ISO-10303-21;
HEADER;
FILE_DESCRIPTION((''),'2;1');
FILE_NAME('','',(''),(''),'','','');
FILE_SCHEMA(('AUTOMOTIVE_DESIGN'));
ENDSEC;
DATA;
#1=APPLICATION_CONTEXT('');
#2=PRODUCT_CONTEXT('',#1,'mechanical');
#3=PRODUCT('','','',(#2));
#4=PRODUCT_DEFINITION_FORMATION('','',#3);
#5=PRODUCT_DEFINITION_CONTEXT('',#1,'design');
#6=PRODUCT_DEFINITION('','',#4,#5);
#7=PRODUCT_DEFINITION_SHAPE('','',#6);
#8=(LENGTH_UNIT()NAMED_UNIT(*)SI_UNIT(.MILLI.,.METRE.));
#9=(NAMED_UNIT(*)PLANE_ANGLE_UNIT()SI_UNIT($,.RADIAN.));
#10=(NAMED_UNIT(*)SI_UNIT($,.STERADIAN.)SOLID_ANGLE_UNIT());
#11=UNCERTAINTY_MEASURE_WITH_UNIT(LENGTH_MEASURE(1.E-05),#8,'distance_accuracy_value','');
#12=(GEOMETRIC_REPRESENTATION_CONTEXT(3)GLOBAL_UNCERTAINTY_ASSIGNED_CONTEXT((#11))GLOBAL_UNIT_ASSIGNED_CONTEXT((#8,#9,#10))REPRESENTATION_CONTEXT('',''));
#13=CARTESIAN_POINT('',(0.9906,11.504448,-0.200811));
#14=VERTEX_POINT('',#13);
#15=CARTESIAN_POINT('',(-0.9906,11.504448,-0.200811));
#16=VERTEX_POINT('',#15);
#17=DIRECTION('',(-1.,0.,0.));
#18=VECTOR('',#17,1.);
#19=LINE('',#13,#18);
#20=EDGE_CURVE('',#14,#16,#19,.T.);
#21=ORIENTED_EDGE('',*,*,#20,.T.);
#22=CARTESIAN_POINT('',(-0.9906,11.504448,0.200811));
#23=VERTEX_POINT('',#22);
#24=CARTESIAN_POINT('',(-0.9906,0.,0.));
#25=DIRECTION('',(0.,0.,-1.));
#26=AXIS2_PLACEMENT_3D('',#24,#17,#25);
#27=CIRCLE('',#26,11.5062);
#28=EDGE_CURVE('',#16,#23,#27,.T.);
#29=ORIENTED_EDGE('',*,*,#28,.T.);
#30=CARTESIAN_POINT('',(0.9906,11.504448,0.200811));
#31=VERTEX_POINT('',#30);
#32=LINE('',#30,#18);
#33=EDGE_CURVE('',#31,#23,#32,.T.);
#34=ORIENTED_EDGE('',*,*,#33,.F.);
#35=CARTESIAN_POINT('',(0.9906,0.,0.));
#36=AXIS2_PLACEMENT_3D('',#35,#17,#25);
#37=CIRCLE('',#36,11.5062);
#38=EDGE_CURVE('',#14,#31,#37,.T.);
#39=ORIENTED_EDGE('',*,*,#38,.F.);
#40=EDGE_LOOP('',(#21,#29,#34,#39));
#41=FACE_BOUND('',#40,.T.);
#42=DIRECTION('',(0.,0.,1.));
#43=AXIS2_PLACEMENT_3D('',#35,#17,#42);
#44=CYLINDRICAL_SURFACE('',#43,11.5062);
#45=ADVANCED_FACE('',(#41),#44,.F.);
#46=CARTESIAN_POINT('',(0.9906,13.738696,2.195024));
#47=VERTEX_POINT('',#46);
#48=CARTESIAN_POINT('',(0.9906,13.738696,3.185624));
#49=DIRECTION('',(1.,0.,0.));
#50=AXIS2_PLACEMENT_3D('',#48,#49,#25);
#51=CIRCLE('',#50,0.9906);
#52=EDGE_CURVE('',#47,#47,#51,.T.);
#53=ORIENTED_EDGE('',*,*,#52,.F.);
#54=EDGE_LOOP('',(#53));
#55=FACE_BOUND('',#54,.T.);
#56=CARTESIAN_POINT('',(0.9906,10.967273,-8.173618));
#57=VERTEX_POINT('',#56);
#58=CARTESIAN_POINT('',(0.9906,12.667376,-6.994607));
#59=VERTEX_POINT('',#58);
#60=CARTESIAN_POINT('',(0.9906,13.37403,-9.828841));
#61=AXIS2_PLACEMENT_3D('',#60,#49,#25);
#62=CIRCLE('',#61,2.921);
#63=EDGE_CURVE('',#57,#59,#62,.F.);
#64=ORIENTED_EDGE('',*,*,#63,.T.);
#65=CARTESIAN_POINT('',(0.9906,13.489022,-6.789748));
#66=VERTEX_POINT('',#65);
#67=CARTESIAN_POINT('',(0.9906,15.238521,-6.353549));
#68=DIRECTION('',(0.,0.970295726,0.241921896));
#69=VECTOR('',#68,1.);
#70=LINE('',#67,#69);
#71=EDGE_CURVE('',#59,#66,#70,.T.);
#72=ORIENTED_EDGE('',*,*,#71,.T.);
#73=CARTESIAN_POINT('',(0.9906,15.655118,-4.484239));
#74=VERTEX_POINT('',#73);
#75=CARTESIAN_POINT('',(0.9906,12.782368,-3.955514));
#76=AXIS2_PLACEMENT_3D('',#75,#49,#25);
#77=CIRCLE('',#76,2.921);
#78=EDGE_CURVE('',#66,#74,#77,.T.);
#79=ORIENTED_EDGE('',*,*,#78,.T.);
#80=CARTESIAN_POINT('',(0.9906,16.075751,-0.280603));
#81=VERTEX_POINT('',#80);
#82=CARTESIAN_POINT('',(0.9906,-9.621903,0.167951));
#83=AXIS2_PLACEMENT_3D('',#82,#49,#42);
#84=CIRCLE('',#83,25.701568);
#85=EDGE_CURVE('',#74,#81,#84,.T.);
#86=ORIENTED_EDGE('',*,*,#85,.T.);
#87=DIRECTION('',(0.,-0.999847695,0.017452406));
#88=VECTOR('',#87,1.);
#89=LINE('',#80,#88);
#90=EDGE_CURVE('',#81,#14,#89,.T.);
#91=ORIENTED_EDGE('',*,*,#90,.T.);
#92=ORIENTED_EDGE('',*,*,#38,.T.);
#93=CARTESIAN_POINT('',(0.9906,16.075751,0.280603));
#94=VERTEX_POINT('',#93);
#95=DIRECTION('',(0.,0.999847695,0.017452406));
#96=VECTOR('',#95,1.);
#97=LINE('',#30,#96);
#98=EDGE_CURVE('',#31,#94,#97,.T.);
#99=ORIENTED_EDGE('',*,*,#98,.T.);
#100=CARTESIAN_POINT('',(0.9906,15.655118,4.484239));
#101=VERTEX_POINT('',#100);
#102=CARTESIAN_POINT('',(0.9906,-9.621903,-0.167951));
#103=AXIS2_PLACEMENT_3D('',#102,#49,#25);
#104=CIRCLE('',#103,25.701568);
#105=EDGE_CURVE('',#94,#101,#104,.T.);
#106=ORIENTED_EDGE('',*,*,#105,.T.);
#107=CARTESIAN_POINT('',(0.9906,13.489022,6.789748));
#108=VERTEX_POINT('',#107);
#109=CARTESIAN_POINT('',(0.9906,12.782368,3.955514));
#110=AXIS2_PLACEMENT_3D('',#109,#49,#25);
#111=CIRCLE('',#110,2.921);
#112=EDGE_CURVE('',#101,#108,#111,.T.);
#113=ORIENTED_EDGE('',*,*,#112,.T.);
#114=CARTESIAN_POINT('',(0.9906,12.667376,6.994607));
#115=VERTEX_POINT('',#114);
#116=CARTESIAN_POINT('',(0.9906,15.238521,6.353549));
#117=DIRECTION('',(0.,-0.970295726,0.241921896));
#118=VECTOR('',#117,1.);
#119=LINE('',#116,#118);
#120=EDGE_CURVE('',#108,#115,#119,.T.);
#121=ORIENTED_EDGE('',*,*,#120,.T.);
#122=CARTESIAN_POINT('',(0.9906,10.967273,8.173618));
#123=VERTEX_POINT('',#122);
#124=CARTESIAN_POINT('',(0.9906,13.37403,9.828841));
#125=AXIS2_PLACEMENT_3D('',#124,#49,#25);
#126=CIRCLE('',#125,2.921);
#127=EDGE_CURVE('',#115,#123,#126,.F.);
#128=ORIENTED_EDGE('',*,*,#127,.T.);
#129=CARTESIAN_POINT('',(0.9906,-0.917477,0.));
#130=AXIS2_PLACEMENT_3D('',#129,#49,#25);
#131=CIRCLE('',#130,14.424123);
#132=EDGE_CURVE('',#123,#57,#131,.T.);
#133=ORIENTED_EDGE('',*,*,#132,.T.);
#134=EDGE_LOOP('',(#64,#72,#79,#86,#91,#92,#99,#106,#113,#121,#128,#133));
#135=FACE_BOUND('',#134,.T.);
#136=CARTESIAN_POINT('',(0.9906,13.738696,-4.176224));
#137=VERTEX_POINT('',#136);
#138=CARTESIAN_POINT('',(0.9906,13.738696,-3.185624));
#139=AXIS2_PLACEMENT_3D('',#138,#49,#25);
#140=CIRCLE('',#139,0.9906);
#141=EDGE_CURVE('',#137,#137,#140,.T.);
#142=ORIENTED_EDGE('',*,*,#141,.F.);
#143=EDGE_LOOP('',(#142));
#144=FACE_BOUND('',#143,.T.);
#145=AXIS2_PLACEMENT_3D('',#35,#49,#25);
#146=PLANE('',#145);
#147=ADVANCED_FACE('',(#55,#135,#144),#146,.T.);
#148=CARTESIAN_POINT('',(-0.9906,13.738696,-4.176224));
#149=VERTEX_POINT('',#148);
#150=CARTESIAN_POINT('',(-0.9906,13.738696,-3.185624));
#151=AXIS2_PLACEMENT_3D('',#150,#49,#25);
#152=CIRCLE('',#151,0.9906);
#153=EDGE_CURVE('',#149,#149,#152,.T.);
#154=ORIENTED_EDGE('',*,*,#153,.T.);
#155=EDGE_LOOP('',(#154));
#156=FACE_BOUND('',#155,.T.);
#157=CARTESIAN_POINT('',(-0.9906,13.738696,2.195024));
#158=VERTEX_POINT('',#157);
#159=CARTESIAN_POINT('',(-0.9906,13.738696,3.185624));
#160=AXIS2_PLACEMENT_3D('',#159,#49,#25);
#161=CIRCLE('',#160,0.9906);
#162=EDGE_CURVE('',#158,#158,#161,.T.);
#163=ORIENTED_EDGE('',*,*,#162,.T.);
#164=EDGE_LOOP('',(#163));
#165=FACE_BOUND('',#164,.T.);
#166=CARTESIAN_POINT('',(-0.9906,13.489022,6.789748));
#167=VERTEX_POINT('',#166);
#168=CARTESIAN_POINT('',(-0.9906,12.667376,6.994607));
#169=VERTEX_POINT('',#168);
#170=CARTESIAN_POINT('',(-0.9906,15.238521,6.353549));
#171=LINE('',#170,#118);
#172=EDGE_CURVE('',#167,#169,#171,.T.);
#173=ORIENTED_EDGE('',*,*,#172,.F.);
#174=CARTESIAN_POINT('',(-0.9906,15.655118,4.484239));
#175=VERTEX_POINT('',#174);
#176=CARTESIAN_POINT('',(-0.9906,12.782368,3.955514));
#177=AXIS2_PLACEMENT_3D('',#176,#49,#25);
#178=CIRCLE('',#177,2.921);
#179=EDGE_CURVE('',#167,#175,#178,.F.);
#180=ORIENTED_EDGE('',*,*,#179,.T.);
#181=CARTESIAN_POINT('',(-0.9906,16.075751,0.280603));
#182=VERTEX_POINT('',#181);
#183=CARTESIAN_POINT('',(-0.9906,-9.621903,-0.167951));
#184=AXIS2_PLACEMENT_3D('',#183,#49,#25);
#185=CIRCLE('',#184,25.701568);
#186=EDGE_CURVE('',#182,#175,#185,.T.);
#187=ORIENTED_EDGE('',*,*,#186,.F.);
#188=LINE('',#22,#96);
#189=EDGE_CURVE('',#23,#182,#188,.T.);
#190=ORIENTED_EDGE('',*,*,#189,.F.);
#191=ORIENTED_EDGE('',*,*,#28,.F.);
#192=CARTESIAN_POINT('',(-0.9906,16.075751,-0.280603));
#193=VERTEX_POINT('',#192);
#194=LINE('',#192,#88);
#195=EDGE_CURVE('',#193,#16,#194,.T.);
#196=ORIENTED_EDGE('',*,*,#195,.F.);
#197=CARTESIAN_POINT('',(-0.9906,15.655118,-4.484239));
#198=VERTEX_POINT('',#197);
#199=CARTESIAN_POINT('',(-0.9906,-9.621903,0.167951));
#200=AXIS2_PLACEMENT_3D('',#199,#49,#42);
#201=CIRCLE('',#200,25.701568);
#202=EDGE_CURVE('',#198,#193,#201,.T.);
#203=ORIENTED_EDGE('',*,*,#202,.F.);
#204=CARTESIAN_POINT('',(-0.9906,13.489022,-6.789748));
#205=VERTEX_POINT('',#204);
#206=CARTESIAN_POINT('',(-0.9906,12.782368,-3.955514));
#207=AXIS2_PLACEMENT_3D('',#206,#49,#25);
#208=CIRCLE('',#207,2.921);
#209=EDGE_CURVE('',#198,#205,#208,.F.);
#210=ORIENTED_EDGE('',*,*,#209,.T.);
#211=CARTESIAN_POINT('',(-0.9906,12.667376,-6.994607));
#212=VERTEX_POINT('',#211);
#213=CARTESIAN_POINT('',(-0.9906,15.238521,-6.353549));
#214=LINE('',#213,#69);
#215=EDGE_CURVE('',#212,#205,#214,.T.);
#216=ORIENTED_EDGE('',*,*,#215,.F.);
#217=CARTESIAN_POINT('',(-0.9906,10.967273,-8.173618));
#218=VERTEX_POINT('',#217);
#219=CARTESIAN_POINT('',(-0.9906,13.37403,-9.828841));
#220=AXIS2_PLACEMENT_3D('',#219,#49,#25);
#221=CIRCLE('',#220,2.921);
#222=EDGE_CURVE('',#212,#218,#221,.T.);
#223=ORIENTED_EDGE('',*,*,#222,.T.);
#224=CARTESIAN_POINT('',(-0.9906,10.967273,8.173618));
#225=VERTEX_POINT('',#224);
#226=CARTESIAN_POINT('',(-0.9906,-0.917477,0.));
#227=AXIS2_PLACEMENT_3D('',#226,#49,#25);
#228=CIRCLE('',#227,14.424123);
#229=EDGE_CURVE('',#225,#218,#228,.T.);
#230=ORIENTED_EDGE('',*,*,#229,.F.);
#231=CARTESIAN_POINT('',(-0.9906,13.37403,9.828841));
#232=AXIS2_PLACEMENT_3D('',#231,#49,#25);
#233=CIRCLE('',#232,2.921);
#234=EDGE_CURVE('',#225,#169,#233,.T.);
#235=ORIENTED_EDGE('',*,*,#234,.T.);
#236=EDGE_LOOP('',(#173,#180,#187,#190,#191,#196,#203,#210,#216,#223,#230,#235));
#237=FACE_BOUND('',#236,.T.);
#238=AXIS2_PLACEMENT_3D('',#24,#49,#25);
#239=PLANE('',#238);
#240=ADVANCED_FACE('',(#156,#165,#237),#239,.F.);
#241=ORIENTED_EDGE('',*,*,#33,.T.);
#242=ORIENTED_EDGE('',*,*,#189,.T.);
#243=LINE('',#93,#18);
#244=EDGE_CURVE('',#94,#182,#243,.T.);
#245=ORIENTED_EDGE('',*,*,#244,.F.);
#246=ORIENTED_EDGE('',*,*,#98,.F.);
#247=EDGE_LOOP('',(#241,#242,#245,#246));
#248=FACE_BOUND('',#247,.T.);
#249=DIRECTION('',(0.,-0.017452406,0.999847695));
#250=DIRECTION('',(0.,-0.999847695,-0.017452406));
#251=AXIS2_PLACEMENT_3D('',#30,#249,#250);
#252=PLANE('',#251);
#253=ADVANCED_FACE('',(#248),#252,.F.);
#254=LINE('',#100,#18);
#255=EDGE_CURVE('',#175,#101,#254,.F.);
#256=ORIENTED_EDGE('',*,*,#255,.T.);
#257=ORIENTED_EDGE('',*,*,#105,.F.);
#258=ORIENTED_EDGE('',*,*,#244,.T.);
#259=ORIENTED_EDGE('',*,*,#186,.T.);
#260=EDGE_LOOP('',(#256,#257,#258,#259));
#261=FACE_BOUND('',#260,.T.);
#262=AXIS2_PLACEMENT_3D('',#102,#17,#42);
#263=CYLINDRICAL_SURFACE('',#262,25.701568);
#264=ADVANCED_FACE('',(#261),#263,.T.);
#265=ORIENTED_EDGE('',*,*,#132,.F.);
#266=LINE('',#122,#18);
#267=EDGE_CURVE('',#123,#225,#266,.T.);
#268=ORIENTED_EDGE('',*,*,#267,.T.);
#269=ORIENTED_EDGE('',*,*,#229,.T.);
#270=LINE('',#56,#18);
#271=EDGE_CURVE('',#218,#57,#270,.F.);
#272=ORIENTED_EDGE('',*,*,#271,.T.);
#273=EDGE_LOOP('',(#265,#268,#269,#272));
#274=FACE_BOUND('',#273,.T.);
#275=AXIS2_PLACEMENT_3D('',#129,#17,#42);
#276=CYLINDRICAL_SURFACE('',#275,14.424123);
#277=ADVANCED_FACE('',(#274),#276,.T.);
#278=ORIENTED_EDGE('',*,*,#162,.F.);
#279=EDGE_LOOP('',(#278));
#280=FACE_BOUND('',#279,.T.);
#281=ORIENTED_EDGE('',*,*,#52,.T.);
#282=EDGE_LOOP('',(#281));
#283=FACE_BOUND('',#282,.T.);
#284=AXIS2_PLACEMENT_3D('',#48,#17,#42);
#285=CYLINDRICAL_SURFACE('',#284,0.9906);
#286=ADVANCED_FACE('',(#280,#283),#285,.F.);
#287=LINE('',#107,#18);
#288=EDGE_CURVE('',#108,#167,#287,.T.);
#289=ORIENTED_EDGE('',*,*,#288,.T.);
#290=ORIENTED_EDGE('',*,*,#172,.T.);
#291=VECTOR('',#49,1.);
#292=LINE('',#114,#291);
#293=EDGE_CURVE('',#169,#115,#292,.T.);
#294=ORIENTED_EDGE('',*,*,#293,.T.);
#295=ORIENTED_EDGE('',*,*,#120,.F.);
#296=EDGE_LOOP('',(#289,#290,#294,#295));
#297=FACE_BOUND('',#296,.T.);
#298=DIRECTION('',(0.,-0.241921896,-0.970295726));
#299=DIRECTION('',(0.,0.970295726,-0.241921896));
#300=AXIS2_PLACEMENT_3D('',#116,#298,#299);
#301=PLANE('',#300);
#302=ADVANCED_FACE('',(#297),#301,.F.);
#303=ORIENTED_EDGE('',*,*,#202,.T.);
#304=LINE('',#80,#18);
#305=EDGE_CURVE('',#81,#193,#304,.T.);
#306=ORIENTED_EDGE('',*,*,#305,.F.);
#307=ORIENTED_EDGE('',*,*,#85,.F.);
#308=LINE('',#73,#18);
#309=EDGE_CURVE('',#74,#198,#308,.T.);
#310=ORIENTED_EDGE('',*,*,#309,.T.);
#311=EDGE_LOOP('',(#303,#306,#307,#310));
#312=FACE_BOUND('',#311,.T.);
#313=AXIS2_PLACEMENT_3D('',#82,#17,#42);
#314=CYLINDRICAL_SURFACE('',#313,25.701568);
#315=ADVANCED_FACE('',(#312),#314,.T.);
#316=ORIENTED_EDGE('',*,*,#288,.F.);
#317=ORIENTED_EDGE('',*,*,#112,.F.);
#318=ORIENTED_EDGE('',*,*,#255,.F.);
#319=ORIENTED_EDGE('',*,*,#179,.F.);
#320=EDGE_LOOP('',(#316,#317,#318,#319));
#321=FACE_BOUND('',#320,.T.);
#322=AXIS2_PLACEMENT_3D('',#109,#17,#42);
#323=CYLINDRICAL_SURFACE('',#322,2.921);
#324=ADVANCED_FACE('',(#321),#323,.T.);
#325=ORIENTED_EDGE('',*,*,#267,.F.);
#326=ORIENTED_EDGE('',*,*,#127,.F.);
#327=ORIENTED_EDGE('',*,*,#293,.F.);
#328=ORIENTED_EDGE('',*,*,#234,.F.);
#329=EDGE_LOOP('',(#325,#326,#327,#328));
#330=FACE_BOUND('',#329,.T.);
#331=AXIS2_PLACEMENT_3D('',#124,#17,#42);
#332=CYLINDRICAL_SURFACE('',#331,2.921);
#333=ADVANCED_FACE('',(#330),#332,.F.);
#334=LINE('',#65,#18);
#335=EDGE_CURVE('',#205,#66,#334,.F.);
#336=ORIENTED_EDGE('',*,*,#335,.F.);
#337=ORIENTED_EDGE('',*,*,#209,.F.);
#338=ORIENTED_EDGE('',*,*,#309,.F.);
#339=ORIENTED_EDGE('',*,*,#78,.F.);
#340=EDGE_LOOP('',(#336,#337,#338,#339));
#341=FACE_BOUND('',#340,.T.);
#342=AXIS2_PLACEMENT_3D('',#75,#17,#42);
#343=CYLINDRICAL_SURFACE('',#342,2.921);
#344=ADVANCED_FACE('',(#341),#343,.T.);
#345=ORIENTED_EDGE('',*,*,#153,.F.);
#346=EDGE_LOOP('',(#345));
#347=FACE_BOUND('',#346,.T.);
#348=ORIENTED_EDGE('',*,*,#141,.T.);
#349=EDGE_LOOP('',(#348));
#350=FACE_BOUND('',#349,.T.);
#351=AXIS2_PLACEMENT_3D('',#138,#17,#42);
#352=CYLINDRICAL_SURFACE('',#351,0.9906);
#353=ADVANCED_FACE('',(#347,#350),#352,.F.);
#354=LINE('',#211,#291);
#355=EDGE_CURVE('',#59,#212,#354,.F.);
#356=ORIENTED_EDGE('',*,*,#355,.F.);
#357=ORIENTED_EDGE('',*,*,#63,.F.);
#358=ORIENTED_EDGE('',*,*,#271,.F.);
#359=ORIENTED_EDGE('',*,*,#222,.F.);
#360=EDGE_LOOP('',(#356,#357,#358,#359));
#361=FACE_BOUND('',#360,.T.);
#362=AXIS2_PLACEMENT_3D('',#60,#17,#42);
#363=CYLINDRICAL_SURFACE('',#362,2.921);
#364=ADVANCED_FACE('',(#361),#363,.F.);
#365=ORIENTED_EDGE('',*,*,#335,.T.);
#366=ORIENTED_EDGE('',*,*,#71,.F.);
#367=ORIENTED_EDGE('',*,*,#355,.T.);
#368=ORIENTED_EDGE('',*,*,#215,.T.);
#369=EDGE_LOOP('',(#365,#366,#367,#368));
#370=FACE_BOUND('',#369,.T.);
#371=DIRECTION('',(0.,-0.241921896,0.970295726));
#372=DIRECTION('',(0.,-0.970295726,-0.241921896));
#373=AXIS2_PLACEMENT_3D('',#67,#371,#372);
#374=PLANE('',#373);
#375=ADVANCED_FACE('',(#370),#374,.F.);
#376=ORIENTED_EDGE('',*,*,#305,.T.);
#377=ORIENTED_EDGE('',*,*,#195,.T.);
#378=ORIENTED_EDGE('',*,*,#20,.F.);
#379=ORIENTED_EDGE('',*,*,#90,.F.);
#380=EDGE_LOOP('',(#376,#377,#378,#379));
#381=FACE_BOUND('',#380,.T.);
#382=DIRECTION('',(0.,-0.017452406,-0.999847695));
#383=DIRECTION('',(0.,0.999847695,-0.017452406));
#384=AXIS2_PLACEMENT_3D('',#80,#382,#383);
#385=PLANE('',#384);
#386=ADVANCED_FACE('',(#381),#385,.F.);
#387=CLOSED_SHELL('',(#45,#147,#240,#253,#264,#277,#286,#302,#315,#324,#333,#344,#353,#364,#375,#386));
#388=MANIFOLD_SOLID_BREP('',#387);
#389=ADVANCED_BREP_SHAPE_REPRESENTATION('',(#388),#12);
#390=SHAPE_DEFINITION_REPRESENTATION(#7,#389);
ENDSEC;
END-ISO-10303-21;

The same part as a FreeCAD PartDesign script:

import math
import FreeCAD as App
import Part
import Sketcher

V = App.Vector
Q = App.Units.Quantity


def edges_at(feature, points):
    """Names of the edges that pass closest to the given points."""
    edges = feature.Shape.Edges
    near = lambda p: min(range(len(edges)), key=lambda i: edges[i].distToShape(Part.Vertex(*p))[0])
    return sorted({f"Edge{near(p) + 1}" for p in points})

doc = App.newDocument("Part")
body = doc.addObject("PartDesign::Body", "Body")

sketch1 = body.newObject("Sketcher::SketchObject", "Sketch")
sketch1.AttachmentSupport = (doc.getObject("YZ_Plane"), [""])
sketch1.MapMode = "FlatFace"
sketch1.addGeometry([
    Part.LineSegment(V(11.504448, 0.200811, 0), V(16.075751, 0.280603, 0)),
    Part.ArcOfCircle(Part.Circle(V(-9.621903, -0.167951, 0), V(0, 0, 1), 25.701568), math.radians(1), math.radians(14.6989)),
    Part.LineSegment(V(15.238521, 6.353549, 0), V(11.536752, 7.276504, 0)),
    Part.ArcOfCircle(Part.Circle(V(-0.917477, 0, 0), V(0, 0, 1), 14.424123), math.radians(30.296021), math.radians(329.703979)),
    Part.LineSegment(V(11.536752, -7.276504, 0), V(15.238521, -6.353549, 0)),
    Part.ArcOfCircle(Part.Circle(V(-9.621903, 0.167951, 0), V(0, 0, 1), 25.701568), math.radians(-14.6989), math.radians(-1)),
    Part.LineSegment(V(16.075751, -0.280603, 0), V(11.504448, -0.200811, 0)),
    Part.ArcOfCircle(Part.Circle(V(0, 0, 0), V(0, 0, 1), 11.5062), math.radians(1), math.radians(359)),
    Part.Circle(V(13.738696, 3.185624, 0), V(0, 0, 1), 0.9906),
    Part.Circle(V(13.738696, -3.185624, 0), V(0, 0, 1), 0.9906),
], False)
sketch1.addConstraint([
    Sketcher.Constraint("Coincident", 0, 2, 1, 1),
    Sketcher.Constraint("Coincident", 1, 2, 2, 1),
    Sketcher.Constraint("Coincident", 2, 2, 3, 1),
    Sketcher.Constraint("Coincident", 3, 2, 4, 1),
    Sketcher.Constraint("Coincident", 4, 2, 5, 1),
    Sketcher.Constraint("Coincident", 5, 2, 6, 1),
    Sketcher.Constraint("Coincident", 6, 2, 7, 2),
    Sketcher.Constraint("Coincident", 7, 1, 0, 1),
    Sketcher.Constraint("Coincident", 7, 3, -1, 1),
    Sketcher.Constraint("Equal", 1, 5),
    Sketcher.Constraint("Equal", 8, 9),
    Sketcher.Constraint("Symmetric", 1, 3, 5, 3, -1),
    Sketcher.Constraint("Symmetric", 8, 3, 9, 3, -1),
    Sketcher.Constraint("Symmetric", 2, 2, 3, 2, -1),
    Sketcher.Constraint("Vertical", 1, 2, 4, 2),
    Sketcher.Constraint("Vertical", 0, 2, 5, 2),
    Sketcher.Constraint("Vertical", 6, 2, 7, 1),
    Sketcher.Constraint("Diameter", 8, Q("0.078 in")),
    Sketcher.Constraint("Angle", 0, Q("1 deg")),
    Sketcher.Constraint("Angle", 2, Q("166 deg")),
    Sketcher.Constraint("Radius", 7, Q("0.453 in")),
    Sketcher.Constraint("Distance", 0, Q("0.18 in")),
    Sketcher.Constraint("Radius", 1, Q("25.701568 mm")),
    Sketcher.Constraint("Radius", 3, Q("14.424123 mm")),
    Sketcher.Constraint("DistanceY", 1, 3, 5, 3, Q("0.335902 mm")),
    Sketcher.Constraint("DistanceX", 5, 3, 8, 3, Q("23.360598 mm")),
    Sketcher.Constraint("DistanceX", 2, 2, 0, 2, Q("4.538999 mm")),
    Sketcher.Constraint("DistanceY", 0, 2, 2, 2, Q("6.9959 mm")),
    Sketcher.Constraint("DistanceX", -1, 1, 0, 2, Q("16.075751 mm")),
    Sketcher.Constraint("DistanceY", 0, 2, 8, 3, Q("2.90502 mm")),
])
pad1 = body.newObject("PartDesign::Pad", "Pad")
pad1.Profile = sketch1
pad1.Length = Q("0.078 in")
pad1.Midplane = True
doc.recompute()

fillet = body.newObject("PartDesign::Fillet", "Fillet")
fillet.Base = (pad1, edges_at(pad1, [
    (0, 15.239, -6.354),
    (0, 11.537, -7.277),
    (0, 11.537, 7.277),
    (0, 15.239, 6.354),
]))
fillet.Radius = Q("0.115 in")

doc.recompute()
